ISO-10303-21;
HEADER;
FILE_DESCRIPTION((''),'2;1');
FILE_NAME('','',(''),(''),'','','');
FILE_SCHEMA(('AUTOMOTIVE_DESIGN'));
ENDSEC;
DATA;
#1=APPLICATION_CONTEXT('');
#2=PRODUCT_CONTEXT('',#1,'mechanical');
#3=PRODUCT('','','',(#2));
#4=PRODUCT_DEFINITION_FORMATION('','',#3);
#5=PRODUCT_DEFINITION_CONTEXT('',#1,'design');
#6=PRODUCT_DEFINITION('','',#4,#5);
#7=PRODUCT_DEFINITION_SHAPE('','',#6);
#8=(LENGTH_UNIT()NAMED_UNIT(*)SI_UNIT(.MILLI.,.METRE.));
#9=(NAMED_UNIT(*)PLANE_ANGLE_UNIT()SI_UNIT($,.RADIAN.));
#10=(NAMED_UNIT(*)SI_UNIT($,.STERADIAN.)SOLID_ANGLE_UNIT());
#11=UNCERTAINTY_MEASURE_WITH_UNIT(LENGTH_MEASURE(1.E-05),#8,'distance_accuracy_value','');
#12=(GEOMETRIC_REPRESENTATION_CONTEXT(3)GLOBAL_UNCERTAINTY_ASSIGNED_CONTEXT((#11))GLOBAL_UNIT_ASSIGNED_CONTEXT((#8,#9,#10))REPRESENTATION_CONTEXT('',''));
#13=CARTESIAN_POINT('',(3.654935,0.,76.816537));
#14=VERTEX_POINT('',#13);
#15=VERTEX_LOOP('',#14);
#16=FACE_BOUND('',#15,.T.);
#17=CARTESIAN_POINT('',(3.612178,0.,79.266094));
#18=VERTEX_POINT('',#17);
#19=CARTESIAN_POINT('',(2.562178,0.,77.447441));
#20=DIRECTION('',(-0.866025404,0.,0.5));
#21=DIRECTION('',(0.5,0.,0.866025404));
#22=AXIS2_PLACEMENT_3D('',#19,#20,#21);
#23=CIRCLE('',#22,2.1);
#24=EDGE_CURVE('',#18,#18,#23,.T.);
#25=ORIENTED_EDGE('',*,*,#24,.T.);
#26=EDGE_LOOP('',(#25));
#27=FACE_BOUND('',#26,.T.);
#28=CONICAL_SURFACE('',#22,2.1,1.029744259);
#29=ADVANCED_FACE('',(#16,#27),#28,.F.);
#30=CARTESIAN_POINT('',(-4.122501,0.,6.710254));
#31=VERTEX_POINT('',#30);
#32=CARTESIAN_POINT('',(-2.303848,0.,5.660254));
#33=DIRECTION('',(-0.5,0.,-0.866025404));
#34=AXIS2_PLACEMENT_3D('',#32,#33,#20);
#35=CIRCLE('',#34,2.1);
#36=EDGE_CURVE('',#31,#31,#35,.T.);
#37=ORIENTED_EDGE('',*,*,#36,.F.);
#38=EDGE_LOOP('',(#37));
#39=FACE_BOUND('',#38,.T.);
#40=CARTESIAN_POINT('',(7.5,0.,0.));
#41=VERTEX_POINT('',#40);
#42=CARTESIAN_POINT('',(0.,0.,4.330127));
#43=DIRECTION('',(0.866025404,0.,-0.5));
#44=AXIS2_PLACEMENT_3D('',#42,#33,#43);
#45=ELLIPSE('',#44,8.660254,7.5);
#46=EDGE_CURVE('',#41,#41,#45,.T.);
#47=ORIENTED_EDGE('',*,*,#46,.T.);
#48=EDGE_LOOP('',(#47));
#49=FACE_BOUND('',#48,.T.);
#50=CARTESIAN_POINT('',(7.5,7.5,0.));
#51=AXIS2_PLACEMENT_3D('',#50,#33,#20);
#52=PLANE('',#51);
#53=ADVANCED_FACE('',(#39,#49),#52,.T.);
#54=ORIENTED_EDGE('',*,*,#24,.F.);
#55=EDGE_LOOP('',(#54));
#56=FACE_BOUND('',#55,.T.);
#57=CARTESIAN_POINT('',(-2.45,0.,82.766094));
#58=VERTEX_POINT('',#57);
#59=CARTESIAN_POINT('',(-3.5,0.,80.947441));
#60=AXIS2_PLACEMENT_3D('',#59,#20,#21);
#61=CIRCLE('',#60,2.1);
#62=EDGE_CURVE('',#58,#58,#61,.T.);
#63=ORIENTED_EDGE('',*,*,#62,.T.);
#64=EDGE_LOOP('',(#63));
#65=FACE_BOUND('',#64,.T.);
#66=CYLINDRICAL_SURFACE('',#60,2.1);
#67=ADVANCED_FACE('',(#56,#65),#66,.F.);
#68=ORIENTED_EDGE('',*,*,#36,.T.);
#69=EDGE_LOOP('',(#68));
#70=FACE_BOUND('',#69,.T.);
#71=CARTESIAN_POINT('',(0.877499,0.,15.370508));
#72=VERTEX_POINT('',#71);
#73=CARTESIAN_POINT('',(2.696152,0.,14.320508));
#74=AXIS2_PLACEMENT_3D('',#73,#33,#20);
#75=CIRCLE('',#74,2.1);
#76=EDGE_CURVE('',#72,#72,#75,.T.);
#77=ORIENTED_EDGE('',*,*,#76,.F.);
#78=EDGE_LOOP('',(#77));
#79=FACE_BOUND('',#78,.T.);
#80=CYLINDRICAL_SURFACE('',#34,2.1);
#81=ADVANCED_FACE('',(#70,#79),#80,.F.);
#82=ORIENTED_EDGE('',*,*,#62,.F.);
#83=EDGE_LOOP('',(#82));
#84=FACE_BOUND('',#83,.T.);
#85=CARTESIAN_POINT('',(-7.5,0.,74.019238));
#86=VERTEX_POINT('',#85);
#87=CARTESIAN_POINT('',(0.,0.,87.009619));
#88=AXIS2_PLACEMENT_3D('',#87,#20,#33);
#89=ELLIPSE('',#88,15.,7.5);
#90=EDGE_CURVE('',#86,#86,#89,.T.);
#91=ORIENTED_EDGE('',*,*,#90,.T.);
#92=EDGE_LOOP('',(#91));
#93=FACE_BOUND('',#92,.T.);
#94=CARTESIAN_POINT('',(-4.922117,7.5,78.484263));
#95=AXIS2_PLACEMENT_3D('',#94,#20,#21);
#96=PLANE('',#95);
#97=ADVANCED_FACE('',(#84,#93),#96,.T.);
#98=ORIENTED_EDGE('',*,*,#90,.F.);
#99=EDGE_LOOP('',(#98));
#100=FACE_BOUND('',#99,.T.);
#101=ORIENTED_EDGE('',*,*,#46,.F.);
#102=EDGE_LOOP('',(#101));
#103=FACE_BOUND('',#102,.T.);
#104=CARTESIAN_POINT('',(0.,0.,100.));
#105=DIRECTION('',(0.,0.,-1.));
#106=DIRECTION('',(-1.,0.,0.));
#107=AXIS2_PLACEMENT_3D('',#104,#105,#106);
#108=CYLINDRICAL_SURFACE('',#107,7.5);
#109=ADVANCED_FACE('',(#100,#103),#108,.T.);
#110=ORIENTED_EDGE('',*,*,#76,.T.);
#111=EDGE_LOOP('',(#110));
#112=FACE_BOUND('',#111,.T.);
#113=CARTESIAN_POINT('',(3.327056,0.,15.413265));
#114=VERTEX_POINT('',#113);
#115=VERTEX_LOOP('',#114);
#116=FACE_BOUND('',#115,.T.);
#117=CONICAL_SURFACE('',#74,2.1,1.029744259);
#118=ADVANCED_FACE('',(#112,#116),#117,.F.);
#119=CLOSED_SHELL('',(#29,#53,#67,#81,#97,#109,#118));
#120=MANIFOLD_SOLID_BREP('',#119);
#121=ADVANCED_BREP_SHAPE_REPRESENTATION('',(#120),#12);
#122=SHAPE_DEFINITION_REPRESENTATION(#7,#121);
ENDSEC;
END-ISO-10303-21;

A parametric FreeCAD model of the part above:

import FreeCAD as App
import Part
import Sketcher

V = App.Vector
Q = App.Units.Quantity


def add_polygon(sketch, points):
    """Adds a closed chain of lines whose ends are joined by coincident constraints."""
    first, n = sketch.GeometryCount, len(points)
    for a, b in zip(points, points[1:] + points[:1]):
        sketch.addGeometry(Part.LineSegment(App.Vector(*a, 0), App.Vector(*b, 0)), False)
    for i in range(n):
        sketch.addConstraint(Sketcher.Constraint("Coincident", first + i, 2, first + (i + 1) % n, 1))

doc = App.newDocument("Part")
body = doc.addObject("PartDesign::Body", "Body")

# Sketch on XY plane
sketch1 = body.newObject("Sketcher::SketchObject", "Sketch")
sketch1.AttachmentSupport = (doc.getObject("XY_Plane"), [""])
sketch1.MapMode = "FlatFace"
sketch1.addGeometry(Part.Circle(V(0, 0, 0), V(0, 0, 1), 7.5), False)
sketch1.addConstraint(Sketcher.Constraint("Coincident", 0, 3, -1, 1))
sketch1.addConstraint(Sketcher.Constraint("Diameter", 0, Q("15 mm")))
pad1 = body.newObject("PartDesign::Pad", "Pad")
pad1.Profile = sketch1
pad1.Length = 100

# Sketch on XZ plane
sketch2 = body.newObject("Sketcher::SketchObject", "Sketch001")
sketch2.AttachmentSupport = (doc.getObject("XZ_Plane"), [""])
sketch2.MapMode = "FlatFace"
add_polygon(sketch2, [(-7.5, 8.660254), (7.5, 0), (-7.5, 0)])  # lines 0-2
add_polygon(sketch2, [(7.5, 100), (-4.922117, 78.484263), (-7.5, 74.019238), (-7.5, 100)])  # lines 3-6
sketch2.addConstraint(Sketcher.Constraint("Horizontal", 1))
sketch2.addConstraint(Sketcher.Constraint("Vertical", 2))
sketch2.addConstraint(Sketcher.Constraint("Vertical", 5))
sketch2.addConstraint(Sketcher.Constraint("Horizontal", 6))
sketch2.addConstraint(Sketcher.Constraint("Symmetric", 0, 2, 1, 2, -1, 1))
sketch2.addConstraint(Sketcher.Constraint("Perpendicular", 0, 3))
sketch2.addConstraint(Sketcher.Constraint("Parallel", 3, 4))
sketch2.addConstraint(Sketcher.Constraint("Vertical", 2, 2, 4, 2))
sketch2.addConstraint(Sketcher.Constraint("Vertical", 0, 2, 6, 2))
sketch2.addConstraint(Sketcher.Constraint("DistanceX", 1, 2, 1, 1, Q("15 mm")))
sketch2.addConstraint(Sketcher.Constraint("Angle", 0, Q("-30 deg")))
sketch2.addConstraint(Sketcher.Constraint("DistanceY", -1, 1, 5, 2, Q("100 mm")))
sketch2.addConstraint(Sketcher.Constraint("DistanceY", 2, 2, 3, 2, Q("69.824009 mm")))
pocket1 = body.newObject("PartDesign::Pocket", "Pocket")
pocket1.Profile = sketch2
pocket1.Type = "ThroughAll"
pocket1.Midplane = True

# Sketch on an angled plane
sketch3 = body.newObject("Sketcher::SketchObject", "Sketch002")
sketch3.Placement = App.Placement(V(1.875, 0, 3.247595), App.Rotation(V(-0.866025404, 0, 0.5), V(0, 1, 0), V(-0.5, 0, -0.866025404), "ZXY"))
sketch3.addGeometry(Part.Circle(V(4.825318, 0, 0), V(0, 0, 1), 2.1), False)
sketch3.addConstraint(Sketcher.Constraint("PointOnObject", 0, 3, -1))
sketch3.addConstraint(Sketcher.Constraint("Diameter", 0, Q("4.2 mm")))
sketch3.addConstraint(Sketcher.Constraint("DistanceX", -1, 1, 0, 3, Q("4.825318 mm")))
doc.recompute()
hole = body.newObject("PartDesign::Hole", "Hole")
hole.Profile = sketch3
hole.ThreadType = "None"
hole.Diameter = 4.2
hole.DepthType = "Dimension"
hole.Depth = 10
hole.DrillPoint = "Angled"
hole.DrillPointAngle = 118

# Sketch on an angled plane
sketch4 = body.newObject("Sketcher::SketchObject", "Sketch003")
sketch4.Placement = App.Placement(V(-37.67627, 0, 21.752405), App.Rotation(V(0.5, 0, 0.866025404), V(0, 1, 0), V(-0.866025404, 0, 0.5), "ZXY"))
sketch4.addGeometry(Part.Circle(V(68.35254, 0, 0), V(0, 0, 1), 2.1), False)
sketch4.addConstraint(Sketcher.Constraint("PointOnObject", 0, 3, -1))
sketch4.addConstraint(Sketcher.Constraint("Diameter", 0, Q("4.2 mm")))
sketch4.addConstraint(Sketcher.Constraint("DistanceX", -1, 1, 0, 3, Q("68.35254 mm")))
doc.recompute()
hole2 = body.newObject("PartDesign::Hole", "Hole001")
hole2.Profile = sketch4
hole2.ThreadType = "None"
hole2.Diameter = 4.2
hole2.DepthType = "Dimension"
hole2.Depth = 7
hole2.DrillPoint = "Angled"
hole2.DrillPointAngle = 118

doc.recompute()
